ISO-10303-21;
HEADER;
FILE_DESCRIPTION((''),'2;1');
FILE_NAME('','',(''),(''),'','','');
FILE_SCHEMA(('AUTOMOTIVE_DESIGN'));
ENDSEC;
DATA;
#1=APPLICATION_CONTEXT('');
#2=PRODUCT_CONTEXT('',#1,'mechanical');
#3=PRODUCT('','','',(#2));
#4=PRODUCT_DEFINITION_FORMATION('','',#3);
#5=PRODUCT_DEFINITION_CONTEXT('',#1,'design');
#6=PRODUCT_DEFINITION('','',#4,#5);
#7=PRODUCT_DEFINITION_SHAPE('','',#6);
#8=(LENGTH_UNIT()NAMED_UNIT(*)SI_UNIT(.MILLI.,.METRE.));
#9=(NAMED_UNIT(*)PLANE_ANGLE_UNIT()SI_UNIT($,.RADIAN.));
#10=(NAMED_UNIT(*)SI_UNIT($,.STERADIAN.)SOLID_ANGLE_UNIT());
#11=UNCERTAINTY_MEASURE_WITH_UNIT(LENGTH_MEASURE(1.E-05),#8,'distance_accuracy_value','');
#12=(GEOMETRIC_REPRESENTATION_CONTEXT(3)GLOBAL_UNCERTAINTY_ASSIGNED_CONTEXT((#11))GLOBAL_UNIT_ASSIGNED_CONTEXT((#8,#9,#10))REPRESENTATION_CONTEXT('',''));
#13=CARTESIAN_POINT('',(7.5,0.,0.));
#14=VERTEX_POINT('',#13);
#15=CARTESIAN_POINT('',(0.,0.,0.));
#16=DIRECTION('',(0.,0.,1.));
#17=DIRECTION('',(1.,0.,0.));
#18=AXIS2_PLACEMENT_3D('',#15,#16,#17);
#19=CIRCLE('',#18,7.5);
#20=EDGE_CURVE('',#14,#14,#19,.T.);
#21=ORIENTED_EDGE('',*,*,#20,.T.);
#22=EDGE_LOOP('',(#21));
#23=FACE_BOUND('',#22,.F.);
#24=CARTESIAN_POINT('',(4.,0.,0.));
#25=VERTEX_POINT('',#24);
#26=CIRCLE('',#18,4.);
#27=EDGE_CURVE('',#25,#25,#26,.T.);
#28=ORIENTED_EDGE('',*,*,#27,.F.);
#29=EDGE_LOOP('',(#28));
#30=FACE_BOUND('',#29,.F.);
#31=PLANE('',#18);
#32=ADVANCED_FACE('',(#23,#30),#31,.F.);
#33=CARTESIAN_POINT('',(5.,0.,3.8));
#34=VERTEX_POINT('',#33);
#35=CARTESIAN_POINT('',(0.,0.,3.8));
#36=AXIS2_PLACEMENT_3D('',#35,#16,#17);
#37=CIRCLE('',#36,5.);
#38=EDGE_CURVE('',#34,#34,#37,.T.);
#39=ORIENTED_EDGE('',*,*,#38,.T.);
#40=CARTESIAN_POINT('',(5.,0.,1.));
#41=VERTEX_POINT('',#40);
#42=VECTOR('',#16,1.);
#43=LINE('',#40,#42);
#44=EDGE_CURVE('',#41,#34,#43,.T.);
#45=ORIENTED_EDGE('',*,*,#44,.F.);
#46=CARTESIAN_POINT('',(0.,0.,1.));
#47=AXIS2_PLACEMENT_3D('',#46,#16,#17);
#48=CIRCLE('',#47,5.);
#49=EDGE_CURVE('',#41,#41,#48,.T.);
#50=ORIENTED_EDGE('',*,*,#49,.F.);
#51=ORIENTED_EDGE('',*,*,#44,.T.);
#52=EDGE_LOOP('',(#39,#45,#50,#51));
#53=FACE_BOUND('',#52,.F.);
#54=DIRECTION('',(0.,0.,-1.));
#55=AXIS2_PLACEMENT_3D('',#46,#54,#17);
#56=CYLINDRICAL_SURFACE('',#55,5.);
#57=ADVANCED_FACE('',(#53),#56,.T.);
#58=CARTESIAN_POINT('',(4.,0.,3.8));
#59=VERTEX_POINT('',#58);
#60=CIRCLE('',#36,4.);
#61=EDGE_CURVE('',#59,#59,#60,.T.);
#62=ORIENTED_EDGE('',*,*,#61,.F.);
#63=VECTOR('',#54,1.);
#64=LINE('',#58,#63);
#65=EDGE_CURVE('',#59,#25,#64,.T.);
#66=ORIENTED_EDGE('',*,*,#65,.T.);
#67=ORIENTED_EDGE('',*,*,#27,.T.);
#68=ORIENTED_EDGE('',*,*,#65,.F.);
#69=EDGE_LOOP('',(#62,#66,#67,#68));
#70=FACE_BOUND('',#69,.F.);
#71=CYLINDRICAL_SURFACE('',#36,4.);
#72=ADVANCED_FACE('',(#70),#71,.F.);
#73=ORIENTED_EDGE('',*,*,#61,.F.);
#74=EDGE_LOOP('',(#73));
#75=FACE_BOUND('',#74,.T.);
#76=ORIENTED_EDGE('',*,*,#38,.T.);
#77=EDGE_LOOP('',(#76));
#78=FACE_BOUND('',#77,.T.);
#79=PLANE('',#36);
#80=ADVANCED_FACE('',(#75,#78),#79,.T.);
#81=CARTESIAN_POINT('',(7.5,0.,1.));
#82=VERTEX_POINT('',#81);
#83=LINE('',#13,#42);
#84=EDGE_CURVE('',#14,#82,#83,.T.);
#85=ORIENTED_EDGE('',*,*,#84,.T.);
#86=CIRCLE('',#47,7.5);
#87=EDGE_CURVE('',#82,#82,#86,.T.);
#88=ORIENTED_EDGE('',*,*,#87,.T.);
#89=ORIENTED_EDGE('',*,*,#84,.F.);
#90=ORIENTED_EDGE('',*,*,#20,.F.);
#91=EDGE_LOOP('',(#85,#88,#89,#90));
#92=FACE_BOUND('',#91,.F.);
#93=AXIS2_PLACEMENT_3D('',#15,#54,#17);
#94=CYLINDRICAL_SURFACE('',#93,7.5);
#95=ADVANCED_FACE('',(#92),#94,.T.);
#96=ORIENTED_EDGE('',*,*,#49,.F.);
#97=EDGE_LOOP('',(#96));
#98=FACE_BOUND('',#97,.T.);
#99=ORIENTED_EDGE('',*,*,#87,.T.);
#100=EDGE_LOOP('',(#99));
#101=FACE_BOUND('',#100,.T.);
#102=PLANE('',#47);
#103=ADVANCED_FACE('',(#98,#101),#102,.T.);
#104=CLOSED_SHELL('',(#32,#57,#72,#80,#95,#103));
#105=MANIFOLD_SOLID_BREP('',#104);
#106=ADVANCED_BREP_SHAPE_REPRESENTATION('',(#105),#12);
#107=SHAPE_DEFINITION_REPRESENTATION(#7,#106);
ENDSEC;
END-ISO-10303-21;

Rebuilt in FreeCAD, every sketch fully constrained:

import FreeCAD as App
import Part
import Sketcher
from FreeCAD import Vector

doc = App.newDocument("Part")
body = doc.addObject("PartDesign::Body", "Body")

# Sketch on XY plane
sketch1 = body.newObject("Sketcher::SketchObject", "Sketch")
sketch1.AttachmentSupport = (doc.getObject("XY_Plane"), [""])
sketch1.MapMode = "FlatFace"
sketch1.addGeometry(Part.Circle(Vector(0, 0, 0), Vector(0, 0, 1), 8), False)
sketch1.addConstraint(Sketcher.Constraint("Coincident", 0, 3, -1, 1))
sketch1.addConstraint(Sketcher.Constraint("Diameter", 0, 15.0))
pad1 = body.newObject("PartDesign::Pad", "Pad")
pad1.Profile = sketch1
pad1.Length = 1

# Sketch on XY plane
sketch2 = body.newObject("Sketcher::SketchObject", "Sketch001")
sketch2.AttachmentSupport = (doc.getObject("XY_Plane"), [""])
sketch2.MapMode = "FlatFace"
sketch2.AttachmentOffset = App.Placement(Vector(0, 0, 1), App.Rotation())
sketch2.addGeometry(Part.Circle(Vector(0, 0, 0), Vector(0, 0, 1), 5), False)
sketch2.addConstraint(Sketcher.Constraint("Coincident", 0, 3, -1, 1))
sketch2.addConstraint(Sketcher.Constraint("Diameter", 0, 10.0))
pad2 = body.newObject("PartDesign::Pad", "Pad001")
pad2.Profile = sketch2
pad2.Length = 2.8

# Sketch on XY plane
sketch3 = body.newObject("Sketcher::SketchObject", "Sketch002")
sketch3.AttachmentSupport = (doc.getObject("XY_Plane"), [""])
sketch3.MapMode = "FlatFace"
sketch3.AttachmentOffset = App.Placement(Vector(0, 0, 3.8), App.Rotation())
sketch3.addGeometry(Part.Circle(Vector(0, 0, 0), Vector(0, 0, 1), 4), False)
sketch3.addConstraint(Sketcher.Constraint("Coincident", 0, 3, -1, 1))
sketch3.addConstraint(Sketcher.Constraint("Diameter", 0, 8.0))
pocket1 = body.newObject("PartDesign::Pocket", "Pocket")
pocket1.Profile = sketch3
pocket1.Type = "ThroughAll"

doc.recompute()
